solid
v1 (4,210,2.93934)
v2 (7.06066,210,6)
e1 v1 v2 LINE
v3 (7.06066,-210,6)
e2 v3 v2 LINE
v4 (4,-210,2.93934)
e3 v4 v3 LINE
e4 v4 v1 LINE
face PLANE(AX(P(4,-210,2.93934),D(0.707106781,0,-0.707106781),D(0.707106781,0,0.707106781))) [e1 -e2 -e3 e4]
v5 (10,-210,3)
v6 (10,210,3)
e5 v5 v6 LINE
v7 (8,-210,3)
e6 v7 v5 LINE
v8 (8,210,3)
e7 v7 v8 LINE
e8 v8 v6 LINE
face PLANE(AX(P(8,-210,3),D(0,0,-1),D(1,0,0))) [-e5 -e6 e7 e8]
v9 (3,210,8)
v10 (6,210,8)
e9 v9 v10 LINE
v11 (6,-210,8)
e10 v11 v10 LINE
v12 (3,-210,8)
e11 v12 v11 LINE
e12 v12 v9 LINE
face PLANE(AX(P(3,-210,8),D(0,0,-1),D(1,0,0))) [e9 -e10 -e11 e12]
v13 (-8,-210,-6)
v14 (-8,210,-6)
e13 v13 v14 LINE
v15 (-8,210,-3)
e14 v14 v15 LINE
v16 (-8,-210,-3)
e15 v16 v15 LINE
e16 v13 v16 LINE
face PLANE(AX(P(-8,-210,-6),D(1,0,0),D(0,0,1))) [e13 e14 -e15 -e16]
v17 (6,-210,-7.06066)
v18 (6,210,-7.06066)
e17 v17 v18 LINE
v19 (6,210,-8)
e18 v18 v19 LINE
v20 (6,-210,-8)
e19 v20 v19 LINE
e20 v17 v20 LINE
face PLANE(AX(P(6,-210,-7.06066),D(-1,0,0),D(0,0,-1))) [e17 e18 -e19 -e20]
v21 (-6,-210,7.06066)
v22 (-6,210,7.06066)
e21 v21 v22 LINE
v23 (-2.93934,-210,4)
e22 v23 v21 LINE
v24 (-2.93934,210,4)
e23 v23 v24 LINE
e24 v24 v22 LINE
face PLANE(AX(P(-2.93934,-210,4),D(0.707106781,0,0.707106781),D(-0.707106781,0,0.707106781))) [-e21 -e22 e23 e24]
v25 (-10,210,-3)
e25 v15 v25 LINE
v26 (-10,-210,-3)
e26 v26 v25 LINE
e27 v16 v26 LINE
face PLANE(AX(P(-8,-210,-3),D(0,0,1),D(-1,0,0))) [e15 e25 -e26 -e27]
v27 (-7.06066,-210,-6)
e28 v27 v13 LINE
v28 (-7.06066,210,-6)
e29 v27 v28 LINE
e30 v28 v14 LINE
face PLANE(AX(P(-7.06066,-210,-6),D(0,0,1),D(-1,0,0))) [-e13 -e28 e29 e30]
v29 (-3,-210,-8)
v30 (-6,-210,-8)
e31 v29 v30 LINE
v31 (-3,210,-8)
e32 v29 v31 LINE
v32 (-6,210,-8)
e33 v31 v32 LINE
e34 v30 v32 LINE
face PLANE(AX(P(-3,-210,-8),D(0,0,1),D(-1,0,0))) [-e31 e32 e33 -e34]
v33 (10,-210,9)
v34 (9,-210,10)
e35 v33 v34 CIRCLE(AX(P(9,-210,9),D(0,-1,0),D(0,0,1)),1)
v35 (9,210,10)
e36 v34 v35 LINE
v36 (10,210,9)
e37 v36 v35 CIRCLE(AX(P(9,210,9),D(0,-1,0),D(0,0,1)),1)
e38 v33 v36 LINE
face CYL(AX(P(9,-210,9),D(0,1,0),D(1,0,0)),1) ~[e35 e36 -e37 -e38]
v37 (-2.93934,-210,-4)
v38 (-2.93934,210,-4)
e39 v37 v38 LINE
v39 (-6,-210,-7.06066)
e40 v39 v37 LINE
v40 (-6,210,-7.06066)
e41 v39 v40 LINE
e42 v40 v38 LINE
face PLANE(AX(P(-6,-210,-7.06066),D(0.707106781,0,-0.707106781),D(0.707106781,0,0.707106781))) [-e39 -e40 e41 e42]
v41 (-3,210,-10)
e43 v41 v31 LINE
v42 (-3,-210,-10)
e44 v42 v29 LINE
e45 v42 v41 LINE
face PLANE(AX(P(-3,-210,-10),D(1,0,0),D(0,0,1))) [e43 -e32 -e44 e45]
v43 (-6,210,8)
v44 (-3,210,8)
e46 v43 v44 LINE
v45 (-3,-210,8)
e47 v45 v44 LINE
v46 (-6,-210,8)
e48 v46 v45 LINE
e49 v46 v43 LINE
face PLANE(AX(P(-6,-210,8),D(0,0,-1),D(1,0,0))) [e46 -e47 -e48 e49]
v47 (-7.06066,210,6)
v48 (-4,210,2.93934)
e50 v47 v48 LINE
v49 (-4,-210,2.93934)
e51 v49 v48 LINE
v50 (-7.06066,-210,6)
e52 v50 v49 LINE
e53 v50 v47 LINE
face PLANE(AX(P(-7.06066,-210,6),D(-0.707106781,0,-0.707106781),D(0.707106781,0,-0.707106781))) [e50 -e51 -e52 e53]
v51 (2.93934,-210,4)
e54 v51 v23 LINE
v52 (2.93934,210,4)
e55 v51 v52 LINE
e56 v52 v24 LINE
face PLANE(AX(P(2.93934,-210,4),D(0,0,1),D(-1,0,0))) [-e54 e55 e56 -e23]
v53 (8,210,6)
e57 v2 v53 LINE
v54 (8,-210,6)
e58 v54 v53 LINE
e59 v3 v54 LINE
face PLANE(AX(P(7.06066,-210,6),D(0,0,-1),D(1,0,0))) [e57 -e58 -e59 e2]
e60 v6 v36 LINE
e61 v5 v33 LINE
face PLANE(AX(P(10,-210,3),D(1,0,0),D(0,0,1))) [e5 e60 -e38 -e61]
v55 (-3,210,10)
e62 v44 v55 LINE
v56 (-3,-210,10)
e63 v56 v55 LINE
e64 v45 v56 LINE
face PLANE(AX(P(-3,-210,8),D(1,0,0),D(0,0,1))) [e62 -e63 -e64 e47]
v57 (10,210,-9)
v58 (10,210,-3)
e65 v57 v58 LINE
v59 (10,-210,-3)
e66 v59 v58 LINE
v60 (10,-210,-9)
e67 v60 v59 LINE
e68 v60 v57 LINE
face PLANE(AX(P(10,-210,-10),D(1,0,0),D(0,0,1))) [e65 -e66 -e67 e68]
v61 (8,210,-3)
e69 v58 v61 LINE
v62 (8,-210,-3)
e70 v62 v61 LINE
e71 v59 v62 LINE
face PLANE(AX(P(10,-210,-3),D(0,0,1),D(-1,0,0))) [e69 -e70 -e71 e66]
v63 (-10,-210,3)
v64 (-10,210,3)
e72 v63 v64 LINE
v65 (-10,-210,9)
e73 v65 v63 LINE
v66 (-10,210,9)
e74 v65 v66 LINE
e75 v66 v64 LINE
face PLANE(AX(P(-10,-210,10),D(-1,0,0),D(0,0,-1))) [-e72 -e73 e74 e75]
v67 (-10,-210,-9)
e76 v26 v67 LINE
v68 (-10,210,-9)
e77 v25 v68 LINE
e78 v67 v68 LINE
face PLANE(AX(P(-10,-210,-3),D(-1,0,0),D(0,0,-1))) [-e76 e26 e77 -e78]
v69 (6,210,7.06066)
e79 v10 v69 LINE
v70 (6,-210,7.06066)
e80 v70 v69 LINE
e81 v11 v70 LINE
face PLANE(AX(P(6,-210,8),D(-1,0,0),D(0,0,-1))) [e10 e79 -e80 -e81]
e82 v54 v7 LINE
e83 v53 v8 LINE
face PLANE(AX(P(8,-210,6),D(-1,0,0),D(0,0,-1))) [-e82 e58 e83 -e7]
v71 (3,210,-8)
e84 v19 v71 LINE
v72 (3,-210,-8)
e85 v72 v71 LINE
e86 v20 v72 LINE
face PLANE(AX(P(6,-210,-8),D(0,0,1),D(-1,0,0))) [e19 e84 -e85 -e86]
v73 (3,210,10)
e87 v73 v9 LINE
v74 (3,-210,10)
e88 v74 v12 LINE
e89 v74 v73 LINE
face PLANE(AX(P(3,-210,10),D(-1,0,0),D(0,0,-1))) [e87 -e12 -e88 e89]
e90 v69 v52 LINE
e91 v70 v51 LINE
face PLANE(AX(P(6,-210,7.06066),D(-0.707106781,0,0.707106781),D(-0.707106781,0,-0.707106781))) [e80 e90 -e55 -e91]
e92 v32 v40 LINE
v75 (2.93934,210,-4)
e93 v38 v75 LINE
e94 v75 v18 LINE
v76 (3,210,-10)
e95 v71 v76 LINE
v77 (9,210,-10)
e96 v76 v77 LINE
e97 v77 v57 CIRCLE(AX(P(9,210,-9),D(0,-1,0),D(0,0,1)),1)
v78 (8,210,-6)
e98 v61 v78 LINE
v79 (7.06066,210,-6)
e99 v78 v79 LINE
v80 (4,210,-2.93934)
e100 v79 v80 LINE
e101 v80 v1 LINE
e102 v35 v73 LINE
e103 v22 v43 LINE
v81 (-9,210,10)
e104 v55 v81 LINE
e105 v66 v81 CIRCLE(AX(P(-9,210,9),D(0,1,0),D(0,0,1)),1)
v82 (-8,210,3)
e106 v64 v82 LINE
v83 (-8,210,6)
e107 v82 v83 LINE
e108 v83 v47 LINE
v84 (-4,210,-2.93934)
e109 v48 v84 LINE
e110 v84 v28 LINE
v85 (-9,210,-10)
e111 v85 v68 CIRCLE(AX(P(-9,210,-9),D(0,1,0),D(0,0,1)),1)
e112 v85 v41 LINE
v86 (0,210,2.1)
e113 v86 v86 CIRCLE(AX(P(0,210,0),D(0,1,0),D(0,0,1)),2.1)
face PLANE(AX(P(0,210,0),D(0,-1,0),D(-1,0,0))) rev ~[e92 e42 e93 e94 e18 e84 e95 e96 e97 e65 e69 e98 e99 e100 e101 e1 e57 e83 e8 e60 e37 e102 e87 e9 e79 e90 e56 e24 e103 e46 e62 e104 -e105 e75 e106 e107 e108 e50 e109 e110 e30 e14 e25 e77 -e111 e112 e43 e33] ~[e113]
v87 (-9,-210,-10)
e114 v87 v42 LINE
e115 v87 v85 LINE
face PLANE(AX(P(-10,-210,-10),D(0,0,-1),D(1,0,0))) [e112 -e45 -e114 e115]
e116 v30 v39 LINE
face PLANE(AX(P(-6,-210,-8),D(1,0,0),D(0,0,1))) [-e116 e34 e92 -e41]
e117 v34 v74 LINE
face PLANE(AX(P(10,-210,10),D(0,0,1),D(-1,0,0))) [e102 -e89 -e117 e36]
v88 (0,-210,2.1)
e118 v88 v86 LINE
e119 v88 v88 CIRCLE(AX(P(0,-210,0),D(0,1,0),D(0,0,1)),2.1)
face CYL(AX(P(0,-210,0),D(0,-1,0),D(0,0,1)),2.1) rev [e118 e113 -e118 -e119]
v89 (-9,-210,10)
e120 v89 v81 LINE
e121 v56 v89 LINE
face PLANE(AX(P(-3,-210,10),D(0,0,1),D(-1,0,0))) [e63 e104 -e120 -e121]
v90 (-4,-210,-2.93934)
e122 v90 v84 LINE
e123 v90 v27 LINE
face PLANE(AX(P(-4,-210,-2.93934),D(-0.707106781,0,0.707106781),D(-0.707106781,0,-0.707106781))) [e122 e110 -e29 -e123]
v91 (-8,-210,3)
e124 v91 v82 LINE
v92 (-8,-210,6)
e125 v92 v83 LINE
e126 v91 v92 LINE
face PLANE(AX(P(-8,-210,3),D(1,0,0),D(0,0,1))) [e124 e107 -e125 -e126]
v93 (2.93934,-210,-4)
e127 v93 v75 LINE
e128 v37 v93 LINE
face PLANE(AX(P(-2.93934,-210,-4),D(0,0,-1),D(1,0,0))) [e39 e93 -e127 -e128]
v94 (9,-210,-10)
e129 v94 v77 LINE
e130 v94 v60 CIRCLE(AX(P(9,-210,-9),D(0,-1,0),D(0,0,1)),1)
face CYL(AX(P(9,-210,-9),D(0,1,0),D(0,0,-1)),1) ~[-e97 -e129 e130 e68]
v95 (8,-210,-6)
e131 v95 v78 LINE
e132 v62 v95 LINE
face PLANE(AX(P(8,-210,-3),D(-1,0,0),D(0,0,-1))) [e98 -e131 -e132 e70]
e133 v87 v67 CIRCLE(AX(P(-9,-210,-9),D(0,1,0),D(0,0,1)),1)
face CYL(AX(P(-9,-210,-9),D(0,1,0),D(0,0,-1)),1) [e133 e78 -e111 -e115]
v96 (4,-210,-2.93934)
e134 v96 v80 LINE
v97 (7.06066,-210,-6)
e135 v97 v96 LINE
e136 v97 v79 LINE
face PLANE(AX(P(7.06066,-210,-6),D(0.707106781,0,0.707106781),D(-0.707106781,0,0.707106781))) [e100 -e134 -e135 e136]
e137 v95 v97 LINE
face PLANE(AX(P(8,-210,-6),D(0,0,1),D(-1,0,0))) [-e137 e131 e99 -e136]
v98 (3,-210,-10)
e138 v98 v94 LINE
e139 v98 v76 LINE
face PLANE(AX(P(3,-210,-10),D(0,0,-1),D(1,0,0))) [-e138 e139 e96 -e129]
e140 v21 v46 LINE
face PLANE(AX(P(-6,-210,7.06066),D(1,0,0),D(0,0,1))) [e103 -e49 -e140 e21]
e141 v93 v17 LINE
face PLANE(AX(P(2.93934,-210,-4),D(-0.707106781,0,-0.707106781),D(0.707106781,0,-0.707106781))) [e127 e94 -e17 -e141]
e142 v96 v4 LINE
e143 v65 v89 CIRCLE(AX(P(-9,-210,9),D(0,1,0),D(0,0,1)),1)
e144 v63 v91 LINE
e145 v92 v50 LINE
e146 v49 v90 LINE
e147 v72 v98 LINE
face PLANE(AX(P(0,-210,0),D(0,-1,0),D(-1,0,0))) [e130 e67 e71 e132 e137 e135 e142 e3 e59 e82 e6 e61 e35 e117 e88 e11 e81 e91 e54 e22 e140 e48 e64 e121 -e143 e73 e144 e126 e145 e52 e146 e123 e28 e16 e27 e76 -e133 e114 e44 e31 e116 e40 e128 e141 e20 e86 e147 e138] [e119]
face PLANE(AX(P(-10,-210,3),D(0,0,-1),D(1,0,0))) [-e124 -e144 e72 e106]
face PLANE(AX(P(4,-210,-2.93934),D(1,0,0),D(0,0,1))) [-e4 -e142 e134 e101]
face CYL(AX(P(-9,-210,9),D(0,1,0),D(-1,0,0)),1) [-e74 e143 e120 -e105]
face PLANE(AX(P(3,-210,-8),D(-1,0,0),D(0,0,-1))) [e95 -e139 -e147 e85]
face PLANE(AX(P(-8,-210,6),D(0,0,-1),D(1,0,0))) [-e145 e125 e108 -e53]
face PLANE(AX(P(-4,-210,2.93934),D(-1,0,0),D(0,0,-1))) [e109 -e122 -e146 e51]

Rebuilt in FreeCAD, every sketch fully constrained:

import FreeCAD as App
import Part
import Sketcher

V = App.Vector
Q = App.Units.Quantity


def edges_at(feature, points):
    """Names of the edges that pass closest to the given points."""
    edges = feature.Shape.Edges
    near = lambda p: min(range(len(edges)), key=lambda i: edges[i].distToShape(Part.Vertex(*p))[0])
    return sorted({f"Edge{near(p) + 1}" for p in points})

doc = App.newDocument("Part")
body = doc.addObject("PartDesign::Body", "Body")

# Sketch on XZ plane
sketch1 = doc.addObject("Sketcher::SketchObject", "Sketch")
body.addObject(sketch1)
sketch1.AttachmentSupport = (doc.XZ_Plane, [""])
sketch1.MapMode = "FlatFace"
sketch1.addGeometry([
    Part.LineSegment(V(-3, -10, 0), V(-10, -10, 0)),  # 0
    Part.LineSegment(V(-10, -10, 0), V(-10, -3, 0)),  # 1
    Part.LineSegment(V(-10, -3, 0), V(-8, -3, 0)),  # 2
    Part.LineSegment(V(-8, -3, 0), V(-8, -6, 0)),  # 3
    Part.LineSegment(V(-8, -6, 0), V(-7.06066, -6, 0)),  # 4
    Part.LineSegment(V(-7.06066, -6, 0), V(-4, -2.93934, 0)),  # 5
    Part.LineSegment(V(-4, -2.93934, 0), V(-4, 2.93934, 0)),  # 6
    Part.LineSegment(V(-4, 2.93934, 0), V(-7.06066, 6, 0)),  # 7
    Part.LineSegment(V(-7.06066, 6, 0), V(-8, 6, 0)),  # 8
    Part.LineSegment(V(-8, 6, 0), V(-8, 3, 0)),  # 9
    Part.LineSegment(V(-8, 3, 0), V(-10, 3, 0)),  # 10
    Part.LineSegment(V(-10, 3, 0), V(-10, 10, 0)),  # 11
    Part.LineSegment(V(-10, 10, 0), V(-3, 10, 0)),  # 12
    Part.LineSegment(V(-3, 10, 0), V(-3, 8, 0)),  # 13
    Part.LineSegment(V(-3, 8, 0), V(-6, 8, 0)),  # 14
    Part.LineSegment(V(-6, 8, 0), V(-6, 7.06066, 0)),  # 15
    Part.LineSegment(V(-6, 7.06066, 0), V(-2.93934, 4, 0)),  # 16
    Part.LineSegment(V(-2.93934, 4, 0), V(2.93934, 4, 0)),  # 17
    Part.LineSegment(V(2.93934, 4, 0), V(6, 7.06066, 0)),  # 18
    Part.LineSegment(V(6, 7.06066, 0), V(6, 8, 0)),  # 19
    Part.LineSegment(V(6, 8, 0), V(3, 8, 0)),  # 20
    Part.LineSegment(V(3, 8, 0), V(3, 10, 0)),  # 21
    Part.LineSegment(V(3, 10, 0), V(10, 10, 0)),  # 22
    Part.LineSegment(V(10, 10, 0), V(10, 3, 0)),  # 23
    Part.LineSegment(V(10, 3, 0), V(8, 3, 0)),  # 24
    Part.LineSegment(V(8, 3, 0), V(8, 6, 0)),  # 25
    Part.LineSegment(V(8, 6, 0), V(7.06066, 6, 0)),  # 26
    Part.LineSegment(V(7.06066, 6, 0), V(4, 2.93934, 0)),  # 27
    Part.LineSegment(V(4, 2.93934, 0), V(4, -2.93934, 0)),  # 28
    Part.LineSegment(V(4, -2.93934, 0), V(7.06066, -6, 0)),  # 29
    Part.LineSegment(V(7.06066, -6, 0), V(8, -6, 0)),  # 30
    Part.LineSegment(V(8, -6, 0), V(8, -3, 0)),  # 31
    Part.LineSegment(V(8, -3, 0), V(10, -3, 0)),  # 32
    Part.LineSegment(V(10, -3, 0), V(10, -10, 0)),  # 33
    Part.LineSegment(V(10, -10, 0), V(3, -10, 0)),  # 34
    Part.LineSegment(V(3, -10, 0), V(3, -8, 0)),  # 35
    Part.LineSegment(V(3, -8, 0), V(6, -8, 0)),  # 36
    Part.LineSegment(V(6, -8, 0), V(6, -7.06066, 0)),  # 37
    Part.LineSegment(V(6, -7.06066, 0), V(2.93934, -4, 0)),  # 38
    Part.LineSegment(V(2.93934, -4, 0), V(-2.93934, -4, 0)),  # 39
    Part.LineSegment(V(-2.93934, -4, 0), V(-6, -7.06066, 0)),  # 40
    Part.LineSegment(V(-6, -7.06066, 0), V(-6, -8, 0)),  # 41
    Part.LineSegment(V(-6, -8, 0), V(-3, -8, 0)),  # 42
    Part.LineSegment(V(-3, -8, 0), V(-3, -10, 0)),  # 43
    Part.Circle(V(0, 0, 0), V(0, 0, 1), 2.1),  # 44
], False)
sketch1.addConstraint([
    Sketcher.Constraint("Coincident", 0, 2, 1, 1),
    Sketcher.Constraint("Coincident", 1, 2, 2, 1),
    Sketcher.Constraint("Coincident", 2, 2, 3, 1),
    Sketcher.Constraint("Coincident", 3, 2, 4, 1),
    Sketcher.Constraint("Coincident", 4, 2, 5, 1),
    Sketcher.Constraint("Coincident", 5, 2, 6, 1),
    Sketcher.Constraint("Coincident", 6, 2, 7, 1),
    Sketcher.Constraint("Coincident", 7, 2, 8, 1),
    Sketcher.Constraint("Coincident", 8, 2, 9, 1),
    Sketcher.Constraint("Coincident", 9, 2, 10, 1),
    Sketcher.Constraint("Coincident", 10, 2, 11, 1),
    Sketcher.Constraint("Coincident", 11, 2, 12, 1),
    Sketcher.Constraint("Coincident", 12, 2, 13, 1),
    Sketcher.Constraint("Coincident", 13, 2, 14, 1),
    Sketcher.Constraint("Coincident", 14, 2, 15, 1),
    Sketcher.Constraint("Coincident", 15, 2, 16, 1),
    Sketcher.Constraint("Coincident", 16, 2, 17, 1),
    Sketcher.Constraint("Coincident", 17, 2, 18, 1),
    Sketcher.Constraint("Coincident", 18, 2, 19, 1),
    Sketcher.Constraint("Coincident", 19, 2, 20, 1),
    Sketcher.Constraint("Coincident", 20, 2, 21, 1),
    Sketcher.Constraint("Coincident", 21, 2, 22, 1),
    Sketcher.Constraint("Coincident", 22, 2, 23, 1),
    Sketcher.Constraint("Coincident", 23, 2, 24, 1),
    Sketcher.Constraint("Coincident", 24, 2, 25, 1),
    Sketcher.Constraint("Coincident", 25, 2, 26, 1),
    Sketcher.Constraint("Coincident", 26, 2, 27, 1),
    Sketcher.Constraint("Coincident", 27, 2, 28, 1),
    Sketcher.Constraint("Coincident", 28, 2, 29, 1),
    Sketcher.Constraint("Coincident", 29, 2, 30, 1),
    Sketcher.Constraint("Coincident", 30, 2, 31, 1),
    Sketcher.Constraint("Coincident", 31, 2, 32, 1),
    Sketcher.Constraint("Coincident", 32, 2, 33, 1),
    Sketcher.Constraint("Coincident", 33, 2, 34, 1),
    Sketcher.Constraint("Coincident", 34, 2, 35, 1),
    Sketcher.Constraint("Coincident", 35, 2, 36, 1),
    Sketcher.Constraint("Coincident", 36, 2, 37, 1),
    Sketcher.Constraint("Coincident", 37, 2, 38, 1),
    Sketcher.Constraint("Coincident", 38, 2, 39, 1),
    Sketcher.Constraint("Coincident", 39, 2, 40, 1),
    Sketcher.Constraint("Coincident", 40, 2, 41, 1),
    Sketcher.Constraint("Coincident", 41, 2, 42, 1),
    Sketcher.Constraint("Coincident", 42, 2, 43, 1),
    Sketcher.Constraint("Coincident", 43, 2, 0, 1),
    Sketcher.Constraint("Horizontal", 0),
    Sketcher.Constraint("Vertical", 1),
    Sketcher.Constraint("Horizontal", 2),
    Sketcher.Constraint("Vertical", 3),
    Sketcher.Constraint("Horizontal", 4),
    Sketcher.Constraint("Vertical", 6),
    Sketcher.Constraint("Horizontal", 8),
    Sketcher.Constraint("Vertical", 9),
    Sketcher.Constraint("Horizontal", 10),
    Sketcher.Constraint("Vertical", 11),
    Sketcher.Constraint("Horizontal", 12),
    Sketcher.Constraint("Vertical", 13),
    Sketcher.Constraint("Horizontal", 14),
    Sketcher.Constraint("Vertical", 15),
    Sketcher.Constraint("Horizontal", 17),
    Sketcher.Constraint("Vertical", 19),
    Sketcher.Constraint("Horizontal", 20),
    Sketcher.Constraint("Vertical", 21),
    Sketcher.Constraint("Horizontal", 22),
    Sketcher.Constraint("Vertical", 23),
    Sketcher.Constraint("Horizontal", 24),
    Sketcher.Constraint("Vertical", 25),
    Sketcher.Constraint("Horizontal", 26),
    Sketcher.Constraint("Vertical", 28),
    Sketcher.Constraint("Horizontal", 30),
    Sketcher.Constraint("Vertical", 31),
    Sketcher.Constraint("Horizontal", 32),
    Sketcher.Constraint("Vertical", 33),
    Sketcher.Constraint("Horizontal", 34),
    Sketcher.Constraint("Vertical", 35),
    Sketcher.Constraint("Horizontal", 36),
    Sketcher.Constraint("Vertical", 37),
    Sketcher.Constraint("Horizontal", 39),
    Sketcher.Constraint("Vertical", 41),
    Sketcher.Constraint("Horizontal", 42),
    Sketcher.Constraint("Vertical", 43),
    Sketcher.Constraint("Coincident", 44, 3, -1, 1),
    Sketcher.Constraint("Symmetric", 0, 2, 22, 2, -1, 1),
    Sketcher.Constraint("Symmetric", 2, 2, 24, 2, -1, 1),
    Sketcher.Constraint("Symmetric", 4, 2, 26, 2, -1, 1),
    Sketcher.Constraint("Symmetric", 5, 2, 27, 2, -1, 1),
    Sketcher.Constraint("Symmetric", 7, 2, 29, 2, -1, 1),
    Sketcher.Constraint("Symmetric", 9, 2, 31, 2, -1, 1),
    Sketcher.Constraint("Symmetric", 11, 2, 33, 2, -1, 1),
    Sketcher.Constraint("Symmetric", 13, 2, 35, 2, -1, 1),
    Sketcher.Constraint("Symmetric", 15, 2, 37, 2, -1, 1),
    Sketcher.Constraint("Symmetric", 16, 2, 38, 2, -1, 1),
    Sketcher.Constraint("Symmetric", 18, 2, 40, 2, -1, 1),
    Sketcher.Constraint("Symmetric", 20, 2, 42, 2, -1, 1),
    Sketcher.Constraint("Symmetric", 15, 2, 18, 2, -2),
    Sketcher.Constraint("Symmetric", 13, 2, 20, 2, -2),
    Sketcher.Constraint("Symmetric", 11, 2, 22, 2, -2),
    Sketcher.Constraint("Symmetric", 9, 2, 24, 2, -2),
    Sketcher.Constraint("Symmetric", 7, 2, 26, 2, -2),
    Sketcher.Constraint("Perpendicular", 5, 7),
    Sketcher.Constraint("Parallel", 7, 16),
    Sketcher.Constraint("Perpendicular", 16, 18),
    Sketcher.Constraint("Perpendicular", 27, 29),
    Sketcher.Constraint("Perpendicular", 38, 40),
    Sketcher.Constraint("Horizontal", 6, 2, 27, 2),
    Sketcher.Constraint("Equal", 34, 1),
    Sketcher.Constraint("Equal", 42, 3),
    Sketcher.Constraint("Equal", 39, 6),
    Sketcher.Constraint("Equal", 32, 13),
    Sketcher.Constraint("Equal", 30, 15),
    Sketcher.Constraint("Equal", 7, 16),
    Sketcher.Constraint("Diameter", 44, Q("4.2 mm")),
    Sketcher.Constraint("DistanceX", 0, 2, 0, 1, Q("7 mm")),
    Sketcher.Constraint("DistanceX", 2, 1, 2, 2, Q("2 mm")),
    Sketcher.Constraint("DistanceX", 14, 2, 14, 1, Q("3 mm")),
    Sketcher.Constraint("DistanceX", 0, 2, -1, 1, Q("10 mm")),
    Sketcher.Constraint("DistanceX", 5, 2, -1, 1, Q("4 mm")),
    Sketcher.Constraint("DistanceX", 4, 1, 4, 2, Q("0.93934 mm")),
])
pad1 = doc.addObject("PartDesign::Pad", "Pad")
body.addObject(pad1)
pad1.Profile = sketch1
pad1.Type = "TwoLengths"
pad1.Length = 210
pad1.Length2 = 210
pad1.Reversed = True
doc.recompute()

fillet = doc.addObject("PartDesign::Fillet", "Fillet")
body.addObject(fillet)
fillet.Base = (pad1, edges_at(pad1, [
    (-10, 0, -10),
    (10, 0, -10),
    (10, 0, 10),
    (-10, 0, 10),
]))
fillet.Radius = 1

doc.recompute()
